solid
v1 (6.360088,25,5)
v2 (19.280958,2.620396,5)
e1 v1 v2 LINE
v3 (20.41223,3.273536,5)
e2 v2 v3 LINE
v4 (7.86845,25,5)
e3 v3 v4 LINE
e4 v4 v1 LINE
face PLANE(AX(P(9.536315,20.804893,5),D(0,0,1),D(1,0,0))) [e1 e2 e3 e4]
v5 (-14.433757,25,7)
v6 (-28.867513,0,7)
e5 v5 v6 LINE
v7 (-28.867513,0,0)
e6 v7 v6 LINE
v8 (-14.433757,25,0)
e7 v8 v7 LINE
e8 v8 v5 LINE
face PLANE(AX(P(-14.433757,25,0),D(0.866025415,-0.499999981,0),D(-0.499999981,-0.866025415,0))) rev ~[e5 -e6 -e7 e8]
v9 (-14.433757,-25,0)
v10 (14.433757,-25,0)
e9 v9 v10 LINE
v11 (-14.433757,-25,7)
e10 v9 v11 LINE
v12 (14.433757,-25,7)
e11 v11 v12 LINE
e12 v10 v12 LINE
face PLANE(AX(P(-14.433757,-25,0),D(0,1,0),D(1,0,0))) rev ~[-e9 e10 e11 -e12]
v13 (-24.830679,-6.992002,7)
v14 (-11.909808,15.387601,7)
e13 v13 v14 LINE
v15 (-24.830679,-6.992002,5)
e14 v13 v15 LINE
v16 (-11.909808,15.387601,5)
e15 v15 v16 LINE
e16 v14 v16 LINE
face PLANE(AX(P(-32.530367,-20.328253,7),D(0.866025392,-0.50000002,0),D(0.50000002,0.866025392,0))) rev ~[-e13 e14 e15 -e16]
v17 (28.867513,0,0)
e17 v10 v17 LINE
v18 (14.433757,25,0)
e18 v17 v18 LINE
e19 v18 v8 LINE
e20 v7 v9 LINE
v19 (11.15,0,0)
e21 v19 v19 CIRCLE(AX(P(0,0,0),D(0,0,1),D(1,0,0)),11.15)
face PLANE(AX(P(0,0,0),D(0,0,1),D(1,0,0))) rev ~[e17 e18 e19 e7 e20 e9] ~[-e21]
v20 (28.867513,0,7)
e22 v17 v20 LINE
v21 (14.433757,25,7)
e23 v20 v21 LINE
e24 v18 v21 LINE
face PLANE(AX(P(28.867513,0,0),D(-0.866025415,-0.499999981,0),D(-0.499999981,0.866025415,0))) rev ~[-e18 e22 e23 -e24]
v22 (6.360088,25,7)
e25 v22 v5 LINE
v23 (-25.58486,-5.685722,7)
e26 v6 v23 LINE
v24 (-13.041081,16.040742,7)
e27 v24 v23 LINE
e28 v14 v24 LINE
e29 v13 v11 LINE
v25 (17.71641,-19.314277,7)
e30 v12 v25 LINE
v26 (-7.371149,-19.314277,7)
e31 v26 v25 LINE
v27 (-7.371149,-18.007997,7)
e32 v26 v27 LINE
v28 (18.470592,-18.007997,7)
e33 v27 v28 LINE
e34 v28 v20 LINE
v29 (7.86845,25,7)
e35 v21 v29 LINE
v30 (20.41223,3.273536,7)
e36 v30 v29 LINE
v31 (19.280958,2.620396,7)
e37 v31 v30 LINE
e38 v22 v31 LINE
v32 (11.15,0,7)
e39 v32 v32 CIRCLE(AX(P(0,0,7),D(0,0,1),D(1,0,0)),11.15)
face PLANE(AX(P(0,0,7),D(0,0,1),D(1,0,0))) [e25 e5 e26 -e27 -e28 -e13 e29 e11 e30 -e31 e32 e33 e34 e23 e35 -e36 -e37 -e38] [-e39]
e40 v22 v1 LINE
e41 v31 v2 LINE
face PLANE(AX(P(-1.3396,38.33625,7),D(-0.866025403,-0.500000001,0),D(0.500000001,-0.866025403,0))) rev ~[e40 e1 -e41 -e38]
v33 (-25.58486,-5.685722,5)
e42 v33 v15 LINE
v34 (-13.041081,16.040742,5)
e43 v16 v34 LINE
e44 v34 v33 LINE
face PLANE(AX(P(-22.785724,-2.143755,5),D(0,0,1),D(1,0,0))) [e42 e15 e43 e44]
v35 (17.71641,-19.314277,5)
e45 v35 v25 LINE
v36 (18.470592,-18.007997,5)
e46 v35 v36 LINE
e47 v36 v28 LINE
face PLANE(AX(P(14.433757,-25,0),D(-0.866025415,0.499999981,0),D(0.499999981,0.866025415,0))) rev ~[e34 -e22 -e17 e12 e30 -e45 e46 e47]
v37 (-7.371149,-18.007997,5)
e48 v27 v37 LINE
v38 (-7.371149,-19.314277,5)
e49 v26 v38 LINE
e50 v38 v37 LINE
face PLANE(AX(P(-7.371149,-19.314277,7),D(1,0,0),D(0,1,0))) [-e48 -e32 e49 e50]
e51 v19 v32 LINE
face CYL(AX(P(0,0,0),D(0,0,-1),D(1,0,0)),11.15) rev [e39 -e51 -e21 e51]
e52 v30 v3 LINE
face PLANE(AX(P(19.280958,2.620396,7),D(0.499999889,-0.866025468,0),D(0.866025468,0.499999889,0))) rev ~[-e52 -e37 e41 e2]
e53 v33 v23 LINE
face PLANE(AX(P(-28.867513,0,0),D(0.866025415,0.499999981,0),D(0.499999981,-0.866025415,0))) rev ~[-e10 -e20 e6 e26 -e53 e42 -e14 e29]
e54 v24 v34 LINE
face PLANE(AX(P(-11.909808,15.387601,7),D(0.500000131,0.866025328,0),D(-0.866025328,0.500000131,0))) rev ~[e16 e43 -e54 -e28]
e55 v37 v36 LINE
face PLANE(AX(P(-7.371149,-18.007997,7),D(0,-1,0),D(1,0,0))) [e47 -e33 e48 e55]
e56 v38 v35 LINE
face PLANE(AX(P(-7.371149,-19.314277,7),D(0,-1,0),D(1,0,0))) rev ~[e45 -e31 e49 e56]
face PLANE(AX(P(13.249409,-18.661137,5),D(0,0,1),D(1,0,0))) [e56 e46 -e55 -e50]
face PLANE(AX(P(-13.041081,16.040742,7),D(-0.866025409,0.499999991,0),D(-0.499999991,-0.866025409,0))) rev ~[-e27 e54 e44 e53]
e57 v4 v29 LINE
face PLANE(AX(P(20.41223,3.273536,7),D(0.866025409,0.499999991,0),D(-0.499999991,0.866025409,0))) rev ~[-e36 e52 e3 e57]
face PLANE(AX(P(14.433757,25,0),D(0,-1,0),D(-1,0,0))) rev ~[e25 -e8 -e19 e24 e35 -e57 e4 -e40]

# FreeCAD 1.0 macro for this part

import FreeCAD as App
import Part
import Sketcher

V = App.Vector
Q = App.Units.Quantity

doc = App.newDocument("Part")
body = doc.addObject("PartDesign::Body", "Body")

# Sketch on XY plane
sketch1 = body.newObject("Sketcher::SketchObject", "Sketch")
sketch1.AttachmentSupport = (doc.getObject("XY_Plane"), [""])
sketch1.MapMode = "FlatFace"
sketch1.addGeometry(Part.LineSegment(V(14, 25, 0), V(-14, 25, 0)), False)
sketch1.addGeometry(Part.LineSegment(V(-14, 25, 0), V(-29, 0, 0)), False)
sketch1.addGeometry(Part.LineSegment(V(-29, 0, 0), V(-14, -25, 0)), False)
sketch1.addGeometry(Part.LineSegment(V(-14, -25, 0), V(14, -25, 0)), False)
sketch1.addGeometry(Part.LineSegment(V(14, -25, 0), V(29, 0, 0)), False)
sketch1.addGeometry(Part.LineSegment(V(29, 0, 0), V(14, 25, 0)), False)
sketch1.addGeometry(Part.Circle(V(0, 0, 0), V(0, 0, 1), 11), False)
sketch1.addConstraint(Sketcher.Constraint("Coincident", 0, 2, 1, 1))
sketch1.addConstraint(Sketcher.Constraint("Coincident", 1, 2, 2, 1))
sketch1.addConstraint(Sketcher.Constraint("Coincident", 2, 2, 3, 1))
sketch1.addConstraint(Sketcher.Constraint("Coincident", 3, 2, 4, 1))
sketch1.addConstraint(Sketcher.Constraint("Coincident", 4, 2, 5, 1))
sketch1.addConstraint(Sketcher.Constraint("Coincident", 5, 2, 0, 1))
sketch1.addConstraint(Sketcher.Constraint("Horizontal", 0))
sketch1.addConstraint(Sketcher.Constraint("Horizontal", 3))
sketch1.addConstraint(Sketcher.Constraint("Coincident", 6, 3, -1, 1))
sketch1.addConstraint(Sketcher.Constraint("Symmetric", 0, 2, 3, 2, -1, 1))
sketch1.addConstraint(Sketcher.Constraint("Symmetric", 1, 2, 4, 2, -1, 1))
sketch1.addConstraint(Sketcher.Constraint("PointOnObject", 1, 2, -1))
sketch1.addConstraint(Sketcher.Constraint("Parallel", 2, 5))
sketch1.addConstraint(Sketcher.Constraint("Vertical", 0, 2, 2, 2))
sketch1.addConstraint(Sketcher.Constraint("Diameter", 6, Q("22.3 mm")))
sketch1.addConstraint(Sketcher.Constraint("Angle", 1, Q("-119.999999 deg")))
sketch1.addConstraint(Sketcher.Constraint("DistanceY", -1, 1, 0, 2, Q("25 mm")))
sketch1.addConstraint(Sketcher.Constraint("DistanceX", 0, 2, 0, 1, Q("28.867514 mm")))
pad1 = body.newObject("PartDesign::Pad", "Pad")
pad1.Profile = sketch1
pad1.Length = 7

# Sketch on XY plane
sketch2 = body.newObject("Sketcher::SketchObject", "Sketch001")
sketch2.AttachmentSupport = (doc.getObject("XY_Plane"), [""])
sketch2.MapMode = "FlatFace"
sketch2.AttachmentOffset = App.Placement(V(0, 0, 7), App.Rotation())
sketch2.addGeometry(Part.LineSegment(V(-7.4, -18, 0), V(-7.4, -19.3, 0)), False)
sketch2.addGeometry(Part.LineSegment(V(-7.4, -19.3, 0), V(33.9, -19.3, 0)), False)
sketch2.addGeometry(Part.LineSegment(V(33.9, -19.3, 0), V(33.9, -18, 0)), False)
sketch2.addGeometry(Part.LineSegment(V(33.9, -18, 0), V(-7.4, -18, 0)), False)
sketch2.addGeometry(Part.LineSegment(V(-1.3, 38.3, 0), V(19.3, 2.6, 0)), False)
sketch2.addGeometry(Part.LineSegment(V(19.3, 2.6, 0), V(20.4, 3.3, 0)), False)
sketch2.addGeometry(Part.LineSegment(V(20.4, 3.3, 0), V(-0.2, 39, 0)), False)
sketch2.addGeometry(Part.LineSegment(V(-0.2, 39, 0), V(-1.3, 38.3, 0)), False)
sketch2.addGeometry(Part.LineSegment(V(-32.5, -20.3, 0), V(-11.9, 15.4, 0)), False)
sketch2.addGeometry(Part.LineSegment(V(-11.9, 15.4, 0), V(-13, 16, 0)), False)
sketch2.addGeometry(Part.LineSegment(V(-13, 16, 0), V(-33.7, -19.7, 0)), False)
sketch2.addGeometry(Part.LineSegment(V(-33.7, -19.7, 0), V(-32.5, -20.3, 0)), False)
sketch2.addConstraint(Sketcher.Constraint("Coincident", 0, 2, 1, 1))
sketch2.addConstraint(Sketcher.Constraint("Coincident", 1, 2, 2, 1))
sketch2.addConstraint(Sketcher.Constraint("Coincident", 2, 2, 3, 1))
sketch2.addConstraint(Sketcher.Constraint("Coincident", 3, 2, 0, 1))
sketch2.addConstraint(Sketcher.Constraint("Coincident", 4, 2, 5, 1))
sketch2.addConstraint(Sketcher.Constraint("Coincident", 5, 2, 6, 1))
sketch2.addConstraint(Sketcher.Constraint("Coincident", 6, 2, 7, 1))
sketch2.addConstraint(Sketcher.Constraint("Coincident", 7, 2, 4, 1))
sketch2.addConstraint(Sketcher.Constraint("Coincident", 8, 2, 9, 1))
sketch2.addConstraint(Sketcher.Constraint("Coincident", 9, 2, 10, 1))
sketch2.addConstraint(Sketcher.Constraint("Coincident", 10, 2, 11, 1))
sketch2.addConstraint(Sketcher.Constraint("Coincident", 11, 2, 8, 1))
sketch2.addConstraint(Sketcher.Constraint("Vertical", 0))
sketch2.addConstraint(Sketcher.Constraint("Horizontal", 1))
sketch2.addConstraint(Sketcher.Constraint("Vertical", 2))
sketch2.addConstraint(Sketcher.Constraint("Horizontal", 3))
sketch2.addConstraint(Sketcher.Constraint("Perpendicular", 4, 5))
sketch2.addConstraint(Sketcher.Constraint("Perpendicular", 5, 6))
sketch2.addConstraint(Sketcher.Constraint("Perpendicular", 6, 7))
sketch2.addConstraint(Sketcher.Constraint("Perpendicular", 8, 9))
sketch2.addConstraint(Sketcher.Constraint("Perpendicular", 9, 10))
sketch2.addConstraint(Sketcher.Constraint("Perpendicular", 10, 11))
sketch2.addConstraint(Sketcher.Constraint("Equal", 6, 8))
sketch2.addConstraint(Sketcher.Constraint("Equal", 7, 9))
sketch2.addConstraint(Sketcher.Constraint("Angle", 4, Q("-60 deg")))
sketch2.addConstraint(Sketcher.Constraint("Angle", 8, Q("59.999999 deg")))
sketch2.addConstraint(Sketcher.Constraint("DistanceY", 0, 2, 0, 1, Q("1.306281 mm")))
sketch2.addConstraint(Sketcher.Constraint("DistanceX", 7, 2, -1, 1, Q("1.3396 mm")))
sketch2.addConstraint(Sketcher.Constraint("DistanceY", -1, 1, 8, 2, Q("15.387601 mm")))
sketch2.addConstraint(Sketcher.Constraint("Distance", 5, Q("1.30628 mm")))
sketch2.addConstraint(Sketcher.Constraint("DistanceX", 1, 1, 1, 2, Q("41.241116 mm")))
sketch2.addConstraint(Sketcher.Constraint("DistanceX", 0, 2, -1, 1, Q("7.371149 mm")))
sketch2.addConstraint(Sketcher.Constraint("DistanceX", -1, 1, 5, 2, Q("20.41223 mm")))
sketch2.addConstraint(Sketcher.Constraint("DistanceY", -1, 1, 6, 2, Q("38.989391 mm")))
sketch2.addConstraint(Sketcher.Constraint("DistanceX", 9, 2, -1, 1, Q("13.041081 mm")))
sketch2.addConstraint(Sketcher.Constraint("DistanceY", 0, 2, 6, 2, Q("58.303669 mm")))
pocket1 = body.newObject("PartDesign::Pocket", "Pocket")
pocket1.Profile = sketch2
pocket1.Length = 2

doc.recompute()
